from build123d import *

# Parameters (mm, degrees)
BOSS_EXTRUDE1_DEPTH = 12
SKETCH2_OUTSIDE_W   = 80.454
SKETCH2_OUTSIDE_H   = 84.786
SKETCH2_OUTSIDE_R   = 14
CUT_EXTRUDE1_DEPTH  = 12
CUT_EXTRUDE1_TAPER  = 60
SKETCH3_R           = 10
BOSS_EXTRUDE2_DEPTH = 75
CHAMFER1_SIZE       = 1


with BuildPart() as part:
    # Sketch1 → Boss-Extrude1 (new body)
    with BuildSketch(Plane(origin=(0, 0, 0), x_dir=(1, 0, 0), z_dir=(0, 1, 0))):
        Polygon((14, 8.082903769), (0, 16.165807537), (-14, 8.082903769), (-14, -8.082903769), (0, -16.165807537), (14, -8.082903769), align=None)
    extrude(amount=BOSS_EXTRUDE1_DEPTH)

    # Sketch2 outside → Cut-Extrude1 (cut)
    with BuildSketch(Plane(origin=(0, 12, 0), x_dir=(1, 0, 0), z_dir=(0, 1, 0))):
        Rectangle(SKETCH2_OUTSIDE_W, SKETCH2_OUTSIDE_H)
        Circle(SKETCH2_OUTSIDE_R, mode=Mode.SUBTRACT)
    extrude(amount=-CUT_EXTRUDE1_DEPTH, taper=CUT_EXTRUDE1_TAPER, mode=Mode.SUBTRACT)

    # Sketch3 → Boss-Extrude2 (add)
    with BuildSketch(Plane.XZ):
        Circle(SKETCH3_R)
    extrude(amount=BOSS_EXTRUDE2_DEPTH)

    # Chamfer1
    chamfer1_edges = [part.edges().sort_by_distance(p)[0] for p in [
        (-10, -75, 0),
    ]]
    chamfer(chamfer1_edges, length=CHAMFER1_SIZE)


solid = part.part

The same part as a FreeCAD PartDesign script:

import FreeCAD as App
import Part
import Sketcher

V = App.Vector
Q = App.Units.Quantity


def edges_at(feature, points):
    """Names of the edges that pass closest to the given points."""
    edges = feature.Shape.Edges
    near = lambda p: min(range(len(edges)), key=lambda i: edges[i].distToShape(Part.Vertex(*p))[0])
    return sorted({f"Edge{near(p) + 1}" for p in points})


def add_polygon(sketch, points):
    """Adds a closed chain of lines whose ends are joined by coincident constraints."""
    first, n = sketch.GeometryCount, len(points)
    for a, b in zip(points, points[1:] + points[:1]):
        sketch.addGeometry(Part.LineSegment(App.Vector(*a, 0), App.Vector(*b, 0)), False)
    for i in range(n):
        sketch.addConstraint(Sketcher.Constraint("Coincident", first + i, 2, first + (i + 1) % n, 1))

doc = App.newDocument("Part")
body = doc.addObject("PartDesign::Body", "Body")

# Sketch on XZ plane
sketch1 = body.newObject("Sketcher::SketchObject", "Sketch")
sketch1.AttachmentSupport = (doc.getObject("XZ_Plane"), [""])
sketch1.MapMode = "FlatFace"
add_polygon(sketch1, [(14, -8), (0, -16), (-14, -8), (-14, 8), (0, 16), (14, 8)])  # lines 0-5
sketch1.addConstraint(Sketcher.Constraint("Vertical", 2))
sketch1.addConstraint(Sketcher.Constraint("Vertical", 5))
sketch1.addConstraint(Sketcher.Constraint("Symmetric", 0, 2, 3, 2, -1, 1))
sketch1.addConstraint(Sketcher.Constraint("Symmetric", 1, 2, 4, 2, -1, 1))
sketch1.addConstraint(Sketcher.Constraint("PointOnObject", 0, 2, -2))
sketch1.addConstraint(Sketcher.Constraint("Parallel", 0, 3))
sketch1.addConstraint(Sketcher.Constraint("Horizontal", 2, 2, 4, 2))
sketch1.addConstraint(Sketcher.Constraint("Angle", 0, Q("-150 deg")))
sketch1.addConstraint(Sketcher.Constraint("DistanceX", 1, 2, -1, 1, Q("14 mm")))
sketch1.addConstraint(Sketcher.Constraint("DistanceY", 2, 1, 2, 2, Q("16.165808 mm")))
pad1 = body.newObject("PartDesign::Pad", "Pad")
pad1.Profile = sketch1
pad1.Length = 12
pad1.Reversed = True

# Sketch on XZ plane
sketch2 = body.newObject("Sketcher::SketchObject", "Sketch001")
sketch2.AttachmentSupport = (doc.getObject("XZ_Plane"), [""])
sketch2.MapMode = "FlatFace"
sketch2.AttachmentOffset = App.Placement(V(0, 0, -12), App.Rotation())
add_polygon(sketch2, [(-40, -42), (-40, 42), (40, 42), (40, -42)])  # lines 0-3
sketch2.addGeometry(Part.Circle(V(0, 0, 0), V(0, 0, 1), 14), False)  # 4
sketch2.addConstraint(Sketcher.Constraint("Vertical", 0))
sketch2.addConstraint(Sketcher.Constraint("Horizontal", 1))
sketch2.addConstraint(Sketcher.Constraint("Vertical", 2))
sketch2.addConstraint(Sketcher.Constraint("Horizontal", 3))
sketch2.addConstraint(Sketcher.Constraint("Coincident", 4, 3, -1, 1))
sketch2.addConstraint(Sketcher.Constraint("Symmetric", 0, 2, 2, 2, -1, 1))
sketch2.addConstraint(Sketcher.Constraint("Diameter", 4, Q("28 mm")))
sketch2.addConstraint(Sketcher.Constraint("DistanceX", 1, 1, 1, 2, Q("80.454 mm")))
sketch2.addConstraint(Sketcher.Constraint("DistanceY", 0, 1, 0, 2, Q("84.786 mm")))
pocket1 = body.newObject("PartDesign::Pocket", "Pocket")
pocket1.Profile = sketch2
pocket1.Length = 12
pocket1.Reversed = True
pocket1.TaperAngle = 60

# Sketch on XZ plane
sketch3 = body.newObject("Sketcher::SketchObject", "Sketch002")
sketch3.AttachmentSupport = (doc.getObject("XZ_Plane"), [""])
sketch3.MapMode = "FlatFace"
sketch3.addGeometry(Part.Circle(V(0, 0, 0), V(0, 0, 1), 10), False)
sketch3.addConstraint(Sketcher.Constraint("Coincident", 0, 3, -1, 1))
sketch3.addConstraint(Sketcher.Constraint("Diameter", 0, Q("20 mm")))
pad2 = body.newObject("PartDesign::Pad", "Pad001")
pad2.Profile = sketch3
pad2.Length = 75
doc.recompute()

chamfer = body.newObject("PartDesign::Chamfer", "Chamfer")
chamfer.Base = (pad2, edges_at(pad2, [(-10, -75, 0)]))
chamfer.Size = 1

doc.recompute()
